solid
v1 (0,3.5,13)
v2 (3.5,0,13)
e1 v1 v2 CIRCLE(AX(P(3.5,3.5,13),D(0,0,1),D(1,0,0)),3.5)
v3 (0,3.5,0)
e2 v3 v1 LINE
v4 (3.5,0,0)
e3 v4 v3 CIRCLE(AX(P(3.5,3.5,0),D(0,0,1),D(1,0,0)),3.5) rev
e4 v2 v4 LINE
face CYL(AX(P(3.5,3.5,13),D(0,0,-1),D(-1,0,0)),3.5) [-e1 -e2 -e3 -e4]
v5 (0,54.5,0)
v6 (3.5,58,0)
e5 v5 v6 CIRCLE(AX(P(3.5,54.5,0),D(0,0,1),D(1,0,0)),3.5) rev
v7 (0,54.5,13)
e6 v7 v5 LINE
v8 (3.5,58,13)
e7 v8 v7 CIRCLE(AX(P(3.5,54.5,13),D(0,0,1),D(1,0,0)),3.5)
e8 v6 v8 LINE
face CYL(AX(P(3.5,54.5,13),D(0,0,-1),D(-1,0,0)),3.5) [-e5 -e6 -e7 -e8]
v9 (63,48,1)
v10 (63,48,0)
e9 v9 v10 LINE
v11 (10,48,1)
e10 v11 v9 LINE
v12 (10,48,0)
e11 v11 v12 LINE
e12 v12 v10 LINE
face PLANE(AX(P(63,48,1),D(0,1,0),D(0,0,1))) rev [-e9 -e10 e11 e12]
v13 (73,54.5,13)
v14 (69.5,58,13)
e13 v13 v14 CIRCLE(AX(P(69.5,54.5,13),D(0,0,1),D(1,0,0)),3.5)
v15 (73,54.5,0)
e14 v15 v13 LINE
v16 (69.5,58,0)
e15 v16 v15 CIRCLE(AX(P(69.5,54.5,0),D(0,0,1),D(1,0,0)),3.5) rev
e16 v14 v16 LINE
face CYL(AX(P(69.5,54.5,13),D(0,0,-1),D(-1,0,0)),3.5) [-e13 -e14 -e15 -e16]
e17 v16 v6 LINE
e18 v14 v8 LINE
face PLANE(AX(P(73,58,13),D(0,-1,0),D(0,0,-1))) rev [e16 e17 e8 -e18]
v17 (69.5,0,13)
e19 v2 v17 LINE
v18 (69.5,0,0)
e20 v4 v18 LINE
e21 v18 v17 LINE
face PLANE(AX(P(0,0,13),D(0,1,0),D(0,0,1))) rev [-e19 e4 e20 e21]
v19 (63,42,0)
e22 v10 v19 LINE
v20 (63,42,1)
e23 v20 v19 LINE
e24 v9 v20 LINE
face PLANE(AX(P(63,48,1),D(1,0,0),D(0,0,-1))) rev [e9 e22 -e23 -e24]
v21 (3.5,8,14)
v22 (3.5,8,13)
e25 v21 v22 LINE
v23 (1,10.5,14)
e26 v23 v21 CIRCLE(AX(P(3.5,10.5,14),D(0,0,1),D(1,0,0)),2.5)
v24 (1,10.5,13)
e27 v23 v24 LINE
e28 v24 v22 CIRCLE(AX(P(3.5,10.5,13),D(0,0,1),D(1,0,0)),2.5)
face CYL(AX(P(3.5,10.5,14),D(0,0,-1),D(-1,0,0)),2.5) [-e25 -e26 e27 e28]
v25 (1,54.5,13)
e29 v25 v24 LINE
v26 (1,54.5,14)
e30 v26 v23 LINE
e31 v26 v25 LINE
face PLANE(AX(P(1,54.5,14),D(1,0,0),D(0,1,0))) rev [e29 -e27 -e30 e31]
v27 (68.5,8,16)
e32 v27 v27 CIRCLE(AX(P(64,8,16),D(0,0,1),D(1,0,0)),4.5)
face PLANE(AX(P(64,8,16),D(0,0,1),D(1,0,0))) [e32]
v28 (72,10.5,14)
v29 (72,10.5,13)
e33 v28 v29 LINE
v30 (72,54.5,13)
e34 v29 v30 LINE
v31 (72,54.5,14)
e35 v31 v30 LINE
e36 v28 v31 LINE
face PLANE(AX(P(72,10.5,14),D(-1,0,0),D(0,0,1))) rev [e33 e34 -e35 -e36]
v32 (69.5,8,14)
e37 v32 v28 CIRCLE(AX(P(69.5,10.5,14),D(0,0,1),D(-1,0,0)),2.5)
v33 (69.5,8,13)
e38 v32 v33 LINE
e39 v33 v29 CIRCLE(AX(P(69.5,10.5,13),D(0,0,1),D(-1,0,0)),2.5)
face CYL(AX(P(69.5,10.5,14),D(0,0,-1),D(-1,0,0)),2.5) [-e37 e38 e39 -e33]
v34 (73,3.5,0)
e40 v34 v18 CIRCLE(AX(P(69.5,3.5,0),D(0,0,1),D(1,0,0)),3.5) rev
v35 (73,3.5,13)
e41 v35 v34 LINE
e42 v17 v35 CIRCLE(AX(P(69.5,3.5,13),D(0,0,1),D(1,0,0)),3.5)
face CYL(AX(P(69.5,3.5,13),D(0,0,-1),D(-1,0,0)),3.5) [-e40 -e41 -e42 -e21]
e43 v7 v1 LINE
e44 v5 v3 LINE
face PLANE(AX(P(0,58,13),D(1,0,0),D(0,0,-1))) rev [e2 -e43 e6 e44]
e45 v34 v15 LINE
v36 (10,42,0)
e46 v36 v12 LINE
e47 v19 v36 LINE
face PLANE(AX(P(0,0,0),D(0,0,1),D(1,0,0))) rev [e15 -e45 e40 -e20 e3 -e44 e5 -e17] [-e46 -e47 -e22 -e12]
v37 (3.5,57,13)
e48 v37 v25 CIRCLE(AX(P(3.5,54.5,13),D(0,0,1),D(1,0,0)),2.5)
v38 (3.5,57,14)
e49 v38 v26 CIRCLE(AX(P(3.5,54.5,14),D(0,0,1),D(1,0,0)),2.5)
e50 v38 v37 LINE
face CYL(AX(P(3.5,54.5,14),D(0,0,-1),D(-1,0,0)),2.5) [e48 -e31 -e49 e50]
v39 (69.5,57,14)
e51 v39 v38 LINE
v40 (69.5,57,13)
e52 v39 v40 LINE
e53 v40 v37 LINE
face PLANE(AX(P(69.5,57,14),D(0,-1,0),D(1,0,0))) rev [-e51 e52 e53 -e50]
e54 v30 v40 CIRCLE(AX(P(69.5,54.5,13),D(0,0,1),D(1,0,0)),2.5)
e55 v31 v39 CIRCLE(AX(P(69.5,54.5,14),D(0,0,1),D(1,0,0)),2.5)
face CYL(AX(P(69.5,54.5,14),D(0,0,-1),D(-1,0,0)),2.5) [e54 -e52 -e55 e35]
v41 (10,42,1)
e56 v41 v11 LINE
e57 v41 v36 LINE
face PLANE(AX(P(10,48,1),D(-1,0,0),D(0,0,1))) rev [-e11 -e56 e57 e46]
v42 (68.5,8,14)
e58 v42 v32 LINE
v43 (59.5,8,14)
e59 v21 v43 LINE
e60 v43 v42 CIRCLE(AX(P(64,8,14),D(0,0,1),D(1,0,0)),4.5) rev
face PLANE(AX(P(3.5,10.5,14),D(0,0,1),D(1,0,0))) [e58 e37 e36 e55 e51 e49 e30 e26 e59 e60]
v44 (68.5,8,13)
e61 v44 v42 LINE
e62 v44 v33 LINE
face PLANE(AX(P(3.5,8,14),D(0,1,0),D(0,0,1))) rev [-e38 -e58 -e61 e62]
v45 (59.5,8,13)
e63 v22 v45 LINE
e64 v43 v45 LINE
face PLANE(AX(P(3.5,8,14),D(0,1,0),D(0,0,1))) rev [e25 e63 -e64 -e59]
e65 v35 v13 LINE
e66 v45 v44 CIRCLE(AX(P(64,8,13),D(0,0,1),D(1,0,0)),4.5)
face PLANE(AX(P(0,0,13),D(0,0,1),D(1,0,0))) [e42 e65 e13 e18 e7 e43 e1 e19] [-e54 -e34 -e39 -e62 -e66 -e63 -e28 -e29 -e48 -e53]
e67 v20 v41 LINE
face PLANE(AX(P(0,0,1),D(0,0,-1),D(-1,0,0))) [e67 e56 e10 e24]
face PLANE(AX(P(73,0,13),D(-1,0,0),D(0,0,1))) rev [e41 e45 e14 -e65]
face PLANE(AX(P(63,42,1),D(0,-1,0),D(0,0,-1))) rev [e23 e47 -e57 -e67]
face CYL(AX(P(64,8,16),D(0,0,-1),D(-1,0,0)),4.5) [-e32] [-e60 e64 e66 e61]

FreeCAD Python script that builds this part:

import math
import FreeCAD as App
import Part
import Sketcher
from FreeCAD import Vector


def edges_at(feature, points):
    """Names of the edges that pass closest to the given points."""
    edges = feature.Shape.Edges
    near = lambda p: min(range(len(edges)), key=lambda i: edges[i].distToShape(Part.Vertex(*p))[0])
    return sorted({f"Edge{near(p) + 1}" for p in points})


def add_polygon(sketch, points):
    """Adds a closed chain of lines whose ends are joined by coincident constraints."""
    first, n = sketch.GeometryCount, len(points)
    for a, b in zip(points, points[1:] + points[:1]):
        sketch.addGeometry(Part.LineSegment(App.Vector(*a, 0), App.Vector(*b, 0)), False)
    for i in range(n):
        sketch.addConstraint(Sketcher.Constraint("Coincident", first + i, 2, first + (i + 1) % n, 1))

doc = App.newDocument("Part")
params = doc.addObject("Spreadsheet::Sheet", "Params")
for row, (alias, value) in enumerate([
    ("sketch1_width", "73 mm"),
    ("sketch1_height", "58 mm"),
    ("pad1_length", "13 mm"),
    ("fillet_radius", "3.5 mm"),
    ("sketch2_radius", "2.5 mm"),
    ("sketch2_width", "66 mm"),
    ("sketch2_height", "44 mm"),
    ("pad2_length", "1 mm"),
    ("sketch3_diameter", "9 mm"),
    ("pad3_length", "3 mm"),
    ("sketch4_width", "53 mm"),
    ("sketch4_height", "6 mm"),
    ("pocket1_length", "1 mm"),
], start=1):
    params.set(f"A{row}", alias)
    params.set(f"B{row}", "=" + value)
    params.setAlias(f"B{row}", alias)

body = doc.addObject("PartDesign::Body", "Body")

# Sketch on XY plane
sketch1 = body.newObject("Sketcher::SketchObject", "Sketch")
sketch1.AttachmentSupport = (doc.getObject("XY_Plane"), [""])
sketch1.MapMode = "FlatFace"
add_polygon(sketch1, [(0, 58), (0, 0), (73, 0), (73, 58)])  # lines 0-3
sketch1.addConstraint([
    Sketcher.Constraint("Vertical", 0),
    Sketcher.Constraint("Horizontal", 1),
    Sketcher.Constraint("Vertical", 2),
    Sketcher.Constraint("Horizontal", 3),
    Sketcher.Constraint("Coincident", 0, 2, -1, 1),
    Sketcher.Constraint("DistanceX", 1, 1, 1, 2, 73.0),
    Sketcher.Constraint("DistanceY", 0, 2, 0, 1, 58.0),
])
sketch1.setExpression("Constraints[9]", "Params.sketch1_width")
sketch1.setExpression("Constraints[10]", "Params.sketch1_height")
pad1 = body.newObject("PartDesign::Pad", "Pad")
pad1.Profile = sketch1
pad1.setExpression("Length", "Params.pad1_length")
doc.recompute()

fillet = body.newObject("PartDesign::Fillet", "Fillet")
fillet.Base = (pad1, edges_at(pad1, [
    (0, 58, 6.5),
    (73, 58, 6.5),
    (73, 0, 6.5),
    (0, 0, 6.5),
]))
fillet.setExpression("Radius", "Params.fillet_radius")

# Sketch on XY plane
sketch2 = body.newObject("Sketcher::SketchObject", "Sketch001")
sketch2.AttachmentSupport = (doc.getObject("XY_Plane"), [""])
sketch2.MapMode = "FlatFace"
sketch2.AttachmentOffset = App.Placement(Vector(0, 0, 13), App.Rotation())
sketch2.addGeometry([
    Part.LineSegment(Vector(3.5, 8, 0), Vector(69.5, 8, 0)),  # 0
    Part.ArcOfCircle(Part.Circle(Vector(69.5, 10.5, 0), Vector(0, 0, 1), 2.5), math.radians(-90), math.radians(0)),  # 1
    Part.LineSegment(Vector(72, 10.5, 0), Vector(72, 54.5, 0)),  # 2
    Part.ArcOfCircle(Part.Circle(Vector(69.5, 54.5, 0), Vector(0, 0, 1), 2.5), math.radians(0), math.radians(90)),  # 3
    Part.LineSegment(Vector(69.5, 57, 0), Vector(3.5, 57, 0)),  # 4
    Part.ArcOfCircle(Part.Circle(Vector(3.5, 54.5, 0), Vector(0, 0, 1), 2.5), math.radians(90), math.radians(180)),  # 5
    Part.LineSegment(Vector(1, 54.5, 0), Vector(1, 10.5, 0)),  # 6
    Part.ArcOfCircle(Part.Circle(Vector(3.5, 10.5, 0), Vector(0, 0, 1), 2.5), math.radians(180), math.radians(270)),  # 7
], False)
sketch2.addConstraint([
    Sketcher.Constraint("Tangent", 0, 2, 1, 1),
    Sketcher.Constraint("Tangent", 1, 2, 2, 1),
    Sketcher.Constraint("Tangent", 2, 2, 3, 1),
    Sketcher.Constraint("Tangent", 3, 2, 4, 1),
    Sketcher.Constraint("Tangent", 4, 2, 5, 1),
    Sketcher.Constraint("Tangent", 5, 2, 6, 1),
    Sketcher.Constraint("Tangent", 6, 2, 7, 1),
    Sketcher.Constraint("Tangent", 7, 2, 0, 1),
    Sketcher.Constraint("Horizontal", 0),
    Sketcher.Constraint("Vertical", 2),
    Sketcher.Constraint("Horizontal", 4),
    Sketcher.Constraint("Vertical", 6),
    Sketcher.Constraint("Equal", 1, 3),
    Sketcher.Constraint("Equal", 3, 5),
    Sketcher.Constraint("Equal", 5, 7),
    Sketcher.Constraint("Radius", 1, 2.5),
    Sketcher.Constraint("DistanceX", 0, 1, 0, 2, 66.0),
    Sketcher.Constraint("DistanceY", 2, 1, 2, 2, 44.0),
    Sketcher.Constraint("DistanceY", -1, 1, 0, 2, 8.0),
    Sketcher.Constraint("DistanceX", -1, 1, 1, 2, 72.0),
])
sketch2.setExpression("Constraints[15]", "Params.sketch2_radius")
sketch2.setExpression("Constraints[16]", "Params.sketch2_width")
sketch2.setExpression("Constraints[17]", "Params.sketch2_height")
pad2 = body.newObject("PartDesign::Pad", "Pad001")
pad2.Profile = sketch2
pad2.setExpression("Length", "Params.pad2_length")

# Sketch on XY plane
sketch3 = body.newObject("Sketcher::SketchObject", "Sketch002")
sketch3.AttachmentSupport = (doc.getObject("XY_Plane"), [""])
sketch3.MapMode = "FlatFace"
sketch3.AttachmentOffset = App.Placement(Vector(0, 0, 13), App.Rotation())
sketch3.addGeometry(Part.Circle(Vector(64, 8, 0), Vector(0, 0, 1), 4.5), False)
sketch3.addConstraint([
    Sketcher.Constraint("Diameter", 0, 9.0),
    Sketcher.Constraint("DistanceX", -1, 1, 0, 3, 64.0),
    Sketcher.Constraint("DistanceY", -1, 1, 0, 3, 8.0),
])
sketch3.setExpression("Constraints[0]", "Params.sketch3_diameter")
pad3 = body.newObject("PartDesign::Pad", "Pad002")
pad3.Profile = sketch3
pad3.setExpression("Length", "Params.pad3_length")

# Sketch on XY plane
sketch4 = body.newObject("Sketcher::SketchObject", "Sketch003")
sketch4.AttachmentSupport = (doc.getObject("XY_Plane"), [""])
sketch4.MapMode = "FlatFace"
add_polygon(sketch4, [(63, 48), (63, 42), (10, 42), (10, 48)])  # lines 0-3
sketch4.addConstraint([
    Sketcher.Constraint("Vertical", 0),
    Sketcher.Constraint("Horizontal", 1),
    Sketcher.Constraint("Vertical", 2),
    Sketcher.Constraint("Horizontal", 3),
    Sketcher.Constraint("DistanceX", 1, 2, 1, 1, 53.0),
    Sketcher.Constraint("DistanceY", 0, 2, 0, 1, 6.0),
    Sketcher.Constraint("DistanceX", -1, 1, 0, 2, 63.0),
    Sketcher.Constraint("DistanceY", -1, 1, 0, 2, 42.0),
])
sketch4.setExpression("Constraints[8]", "Params.sketch4_width")
sketch4.setExpression("Constraints[9]", "Params.sketch4_height")
pocket1 = body.newObject("PartDesign::Pocket", "Pocket")
pocket1.Profile = sketch4
pocket1.setExpression("Length", "Params.pocket1_length")
pocket1.Reversed = True

doc.recompute()
